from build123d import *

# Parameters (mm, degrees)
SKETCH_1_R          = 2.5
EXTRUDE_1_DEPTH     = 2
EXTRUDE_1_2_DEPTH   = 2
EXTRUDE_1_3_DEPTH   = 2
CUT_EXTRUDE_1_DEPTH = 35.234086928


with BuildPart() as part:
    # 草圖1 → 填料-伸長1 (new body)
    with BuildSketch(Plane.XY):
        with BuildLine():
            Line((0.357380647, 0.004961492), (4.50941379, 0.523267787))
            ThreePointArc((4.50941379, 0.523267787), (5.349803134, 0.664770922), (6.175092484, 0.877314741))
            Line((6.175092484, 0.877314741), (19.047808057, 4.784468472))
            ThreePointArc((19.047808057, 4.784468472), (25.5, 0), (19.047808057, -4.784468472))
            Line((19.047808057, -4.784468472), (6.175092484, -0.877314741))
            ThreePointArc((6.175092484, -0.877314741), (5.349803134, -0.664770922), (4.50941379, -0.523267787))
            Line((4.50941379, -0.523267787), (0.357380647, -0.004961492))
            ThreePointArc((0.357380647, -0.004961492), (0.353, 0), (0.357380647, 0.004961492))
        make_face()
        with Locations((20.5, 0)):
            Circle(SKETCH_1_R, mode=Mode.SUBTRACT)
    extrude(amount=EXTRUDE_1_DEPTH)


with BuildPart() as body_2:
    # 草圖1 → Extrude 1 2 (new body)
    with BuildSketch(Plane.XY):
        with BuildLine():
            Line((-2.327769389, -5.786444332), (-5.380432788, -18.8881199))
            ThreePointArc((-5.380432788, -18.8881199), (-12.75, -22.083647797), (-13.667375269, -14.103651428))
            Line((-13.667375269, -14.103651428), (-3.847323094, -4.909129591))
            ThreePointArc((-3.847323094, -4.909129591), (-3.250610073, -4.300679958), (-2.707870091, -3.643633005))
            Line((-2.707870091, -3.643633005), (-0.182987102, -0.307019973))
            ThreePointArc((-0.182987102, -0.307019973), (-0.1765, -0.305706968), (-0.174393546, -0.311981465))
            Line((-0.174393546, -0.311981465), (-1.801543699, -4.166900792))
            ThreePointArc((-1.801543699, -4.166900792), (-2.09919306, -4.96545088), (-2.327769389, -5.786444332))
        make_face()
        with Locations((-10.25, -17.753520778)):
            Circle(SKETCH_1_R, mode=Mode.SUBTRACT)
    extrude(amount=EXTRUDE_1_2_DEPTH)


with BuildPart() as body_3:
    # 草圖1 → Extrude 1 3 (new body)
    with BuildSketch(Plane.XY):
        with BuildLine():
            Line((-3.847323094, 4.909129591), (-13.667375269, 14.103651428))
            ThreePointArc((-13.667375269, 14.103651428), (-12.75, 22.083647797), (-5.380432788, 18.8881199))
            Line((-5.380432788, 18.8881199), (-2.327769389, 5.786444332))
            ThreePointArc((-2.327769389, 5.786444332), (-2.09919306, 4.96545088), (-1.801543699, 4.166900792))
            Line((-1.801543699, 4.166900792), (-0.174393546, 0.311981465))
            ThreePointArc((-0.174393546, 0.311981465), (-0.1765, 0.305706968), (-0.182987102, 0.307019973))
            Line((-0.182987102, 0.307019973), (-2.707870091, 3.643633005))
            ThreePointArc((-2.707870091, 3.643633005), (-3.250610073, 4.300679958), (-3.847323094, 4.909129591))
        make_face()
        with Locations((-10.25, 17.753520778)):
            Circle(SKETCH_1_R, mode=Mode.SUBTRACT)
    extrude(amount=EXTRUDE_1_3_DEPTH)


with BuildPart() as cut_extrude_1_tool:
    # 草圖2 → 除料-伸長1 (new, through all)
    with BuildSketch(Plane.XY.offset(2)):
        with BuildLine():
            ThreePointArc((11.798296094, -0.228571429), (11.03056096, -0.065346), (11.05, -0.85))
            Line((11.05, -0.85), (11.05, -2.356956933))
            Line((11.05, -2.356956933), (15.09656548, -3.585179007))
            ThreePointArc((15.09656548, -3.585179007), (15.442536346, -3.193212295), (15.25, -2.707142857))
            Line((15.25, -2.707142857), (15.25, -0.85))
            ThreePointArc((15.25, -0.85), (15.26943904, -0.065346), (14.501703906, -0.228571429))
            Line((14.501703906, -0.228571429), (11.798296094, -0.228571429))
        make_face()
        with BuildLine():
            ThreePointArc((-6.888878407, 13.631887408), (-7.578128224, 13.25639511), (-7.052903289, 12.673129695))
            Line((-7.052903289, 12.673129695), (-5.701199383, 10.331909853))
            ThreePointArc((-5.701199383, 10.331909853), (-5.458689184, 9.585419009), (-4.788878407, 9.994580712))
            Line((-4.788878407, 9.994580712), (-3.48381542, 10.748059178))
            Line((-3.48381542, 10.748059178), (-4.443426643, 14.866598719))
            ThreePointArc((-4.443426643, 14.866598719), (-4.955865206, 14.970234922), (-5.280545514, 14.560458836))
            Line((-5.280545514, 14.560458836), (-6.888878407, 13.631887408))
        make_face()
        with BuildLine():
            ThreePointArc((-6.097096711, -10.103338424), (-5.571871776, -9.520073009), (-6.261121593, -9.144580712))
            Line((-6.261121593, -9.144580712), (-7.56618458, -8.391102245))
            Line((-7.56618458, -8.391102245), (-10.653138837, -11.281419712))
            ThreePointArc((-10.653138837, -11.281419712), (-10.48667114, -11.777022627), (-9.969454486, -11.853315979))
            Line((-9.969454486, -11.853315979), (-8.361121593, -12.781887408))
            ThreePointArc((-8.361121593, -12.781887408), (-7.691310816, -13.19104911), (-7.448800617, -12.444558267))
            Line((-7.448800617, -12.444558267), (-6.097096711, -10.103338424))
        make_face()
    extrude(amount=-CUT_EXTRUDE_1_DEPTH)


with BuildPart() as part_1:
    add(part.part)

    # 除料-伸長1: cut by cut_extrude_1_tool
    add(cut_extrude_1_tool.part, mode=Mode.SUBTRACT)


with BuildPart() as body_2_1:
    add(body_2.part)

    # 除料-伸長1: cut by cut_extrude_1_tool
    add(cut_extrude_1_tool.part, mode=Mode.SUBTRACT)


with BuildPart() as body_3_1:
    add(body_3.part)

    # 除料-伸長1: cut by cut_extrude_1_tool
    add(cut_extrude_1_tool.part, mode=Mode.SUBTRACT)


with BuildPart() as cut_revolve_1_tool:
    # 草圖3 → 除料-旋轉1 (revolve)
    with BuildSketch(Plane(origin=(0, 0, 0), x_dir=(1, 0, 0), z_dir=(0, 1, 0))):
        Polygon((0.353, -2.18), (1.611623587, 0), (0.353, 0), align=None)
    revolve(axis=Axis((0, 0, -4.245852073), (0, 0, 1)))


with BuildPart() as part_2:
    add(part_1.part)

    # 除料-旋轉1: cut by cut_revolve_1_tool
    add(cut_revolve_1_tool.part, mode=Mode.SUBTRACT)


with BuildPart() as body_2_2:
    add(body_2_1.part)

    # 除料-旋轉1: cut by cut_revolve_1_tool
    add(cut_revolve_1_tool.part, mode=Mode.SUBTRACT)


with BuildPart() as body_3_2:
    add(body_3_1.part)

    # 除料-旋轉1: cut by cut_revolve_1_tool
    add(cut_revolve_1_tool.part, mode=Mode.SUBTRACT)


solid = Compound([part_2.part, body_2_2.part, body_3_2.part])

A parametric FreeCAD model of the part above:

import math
import FreeCAD as App
import Part
import Sketcher
Q = App.Units.Quantity

doc = App.newDocument("Part")
params = doc.addObject("Spreadsheet::Sheet", "Params")
for row, (alias, value) in enumerate([
    ("sketch1_diameter", "5 mm"),
    ("sketch1_radius", "10 mm"),
    ("sketch1_radius2", "5 mm"),
    ("pad1_length", "2 mm"),
    ("sketch2_diameter", "5 mm"),
    ("sketch2_radius", "10 mm"),
    ("sketch2_radius2", "5 mm"),
    ("pad2_length", "2 mm"),
    ("sketch3_diameter", "5 mm"),
    ("sketch3_radius", "10 mm"),
    ("sketch3_radius2", "5 mm"),
    ("pad3_length", "2 mm"),
    ("sketch4_radius", "0.5 mm"),
    ("sketch4_width", "0.3 mm"),
    ("pad4_length", "35.234087 mm"),
    ("sketch5_height", "2.18 mm"),
    ("revolution_angle", "360 deg"),
], start=1):
    params.set(f"A{row}", alias)
    params.set(f"B{row}", "=" + value)
    params.setAlias(f"B{row}", alias)

body = doc.addObject("PartDesign::Body", "Body")

# Sketch on XY plane
sketch1 = body.newObject("Sketcher::SketchObject", "Sketch")
sketch1.AttachmentSupport = (doc.getObject("XY_Plane"), [""])
sketch1.MapMode = "FlatFace"
sketch1.addGeometry([
    Part.LineSegment(App.Vector(4.509, 0.523, 0), App.Vector(0.357, 0.005, 0)),  # 0
    Part.ArcOfCircle(Part.Circle(App.Vector(0.358, 0, 0), App.Vector(0, 0, 1), 0.005), math.radians(97), math.radians(263)),  # 1
    Part.LineSegment(App.Vector(0.357, -0.005, 0), App.Vector(4.509, -0.523, 0)),  # 2
    Part.ArcOfCircle(Part.Circle(App.Vector(3.271, -10.446, 0), App.Vector(0, 0, 1), 10), math.radians(73.12), math.radians(82.88)),  # 3
    Part.LineSegment(App.Vector(6.175, -0.877, 0), App.Vector(19.048, -4.784, 0)),  # 4
    Part.ArcOfCircle(Part.Circle(App.Vector(20.5, 0, 0), App.Vector(0, 0, 1), 5), math.radians(-107), math.radians(107)),  # 5
    Part.LineSegment(App.Vector(19.048, 4.784, 0), App.Vector(6.175, 0.877, 0)),  # 6
    Part.ArcOfCircle(Part.Circle(App.Vector(3.271, 10.446, 0), App.Vector(0, 0, 1), 10), math.radians(-82.88), math.radians(-73.12)),  # 7
    Part.Circle(App.Vector(20.5, 0, 0), App.Vector(0, 0, 1), 2.5),  # 8
], False)
sketch1.addConstraint([
    Sketcher.Constraint("Tangent", 0, 2, 1, 1),
    Sketcher.Constraint("Tangent", 1, 2, 2, 1),
    Sketcher.Constraint("Tangent", 2, 2, 3, 2),
    Sketcher.Constraint("Tangent", 3, 1, 4, 1),
    Sketcher.Constraint("Tangent", 4, 2, 5, 1),
    Sketcher.Constraint("Tangent", 5, 2, 6, 1),
    Sketcher.Constraint("Tangent", 6, 2, 7, 2),
    Sketcher.Constraint("Tangent", 7, 1, 0, 1),
    Sketcher.Constraint("Coincident", 8, 3, 5, 3),
    Sketcher.Constraint("Equal", 3, 7),
    Sketcher.Constraint("Symmetric", 3, 3, 7, 3, -1),
    Sketcher.Constraint("PointOnObject", 1, 3, -1),
    Sketcher.Constraint("PointOnObject", 5, 3, -1),
    Sketcher.Constraint("Diameter", 8, Q("5 mm")),
    Sketcher.Constraint("Radius", 3, Q("10 mm")),
    Sketcher.Constraint("Radius", 5, Q("5 mm")),
    Sketcher.Constraint("Radius", 1, Q("0.005 mm")),
    Sketcher.Constraint("DistanceX", -1, 1, 5, 3, Q("20.5 mm")),
    Sketcher.Constraint("DistanceX", -1, 1, 1, 3, Q("0.358 mm")),
    Sketcher.Constraint("DistanceY", 4, 2, 2, 2, Q("4.261201 mm")),
    Sketcher.Constraint("DistanceX", 3, 3, 4, 2, Q("15.777099 mm")),
])
sketch1.setExpression("Constraints[13]", "Params.sketch1_diameter")
sketch1.setExpression("Constraints[14]", "Params.sketch1_radius")
sketch1.setExpression("Constraints[15]", "Params.sketch1_radius2")
pad1 = body.newObject("PartDesign::Pad", "Pad")
pad1.Profile = sketch1
pad1.setExpression("Length", "Params.pad1_length")
body2 = doc.addObject("PartDesign::Body", "Body001")

# Sketch on XY plane
sketch2 = body2.newObject("Sketcher::SketchObject", "Sketch001")
sketch2.AttachmentSupport = (doc.getObject("XY_Plane001"), [""])
sketch2.MapMode = "FlatFace"
sketch2.addGeometry([
    Part.LineSegment(App.Vector(-5.38, -18.888, 0), App.Vector(-2.328, -5.786, 0)),  # 0
    Part.ArcOfCircle(Part.Circle(App.Vector(7.411, -8.056, 0), App.Vector(0, 0, 1), 10), math.radians(157.12), math.radians(166.88)),  # 1
    Part.LineSegment(App.Vector(-1.802, -4.167, 0), App.Vector(-0.174, -0.312, 0)),  # 2
    Part.ArcOfCircle(Part.Circle(App.Vector(-0.179, -0.31, 0), App.Vector(0, 0, 1), 0.005), math.radians(-23), math.radians(143)),  # 3
    Part.LineSegment(App.Vector(-0.183, -0.307, 0), App.Vector(-2.708, -3.644, 0)),  # 4
    Part.ArcOfCircle(Part.Circle(App.Vector(-10.682, 2.391, 0), App.Vector(0, 0, 1), 10), math.radians(-46.88), math.radians(-37.12)),  # 5
    Part.LineSegment(App.Vector(-3.847, -4.909, 0), App.Vector(-13.667, -14.104, 0)),  # 6
    Part.ArcOfCircle(Part.Circle(App.Vector(-10.25, -17.754, 0), App.Vector(0, 0, 1), 5), math.radians(133), math.radians(347)),  # 7
    Part.Circle(App.Vector(-10.25, -17.754, 0), App.Vector(0, 0, 1), 2.5),  # 8
], False)
sketch2.addConstraint([
    Sketcher.Constraint("Tangent", 0, 2, 1, 2),
    Sketcher.Constraint("Tangent", 1, 1, 2, 1),
    Sketcher.Constraint("Tangent", 2, 2, 3, 1),
    Sketcher.Constraint("Tangent", 3, 2, 4, 1),
    Sketcher.Constraint("Tangent", 4, 2, 5, 2),
    Sketcher.Constraint("Tangent", 5, 1, 6, 1),
    Sketcher.Constraint("Tangent", 6, 2, 7, 1),
    Sketcher.Constraint("Tangent", 7, 2, 0, 1),
    Sketcher.Constraint("Coincident", 8, 3, 7, 3),
    Sketcher.Constraint("Equal", 1, 5),
    Sketcher.Constraint("Equal", 2, 4),
    Sketcher.Constraint("Equal", 0, 6),
    Sketcher.Constraint("Diameter", 8, Q("5 mm")),
    Sketcher.Constraint("Radius", 1, Q("10 mm")),
    Sketcher.Constraint("Radius", 7, Q("5 mm")),
    Sketcher.Constraint("Radius", 3, Q("0.005 mm")),
    Sketcher.Constraint("DistanceX", 7, 3, -1, 1, Q("10.25 mm")),
    Sketcher.Constraint("DistanceX", 3, 3, -1, 1, Q("0.179 mm")),
    Sketcher.Constraint("DistanceY", 1, 1, -1, 1, Q("4.166901 mm")),
    Sketcher.Constraint("DistanceY", 1, 3, 0, 2, Q("2.269198 mm")),
    Sketcher.Constraint("DistanceX", 4, 2, 0, 2, Q("0.380101 mm")),
    Sketcher.Constraint("Distance", 2, Q("4.184259 mm")),
])
sketch2.setExpression("Constraints[12]", "Params.sketch2_diameter")
sketch2.setExpression("Constraints[13]", "Params.sketch2_radius")
sketch2.setExpression("Constraints[14]", "Params.sketch2_radius2")
pad2 = body2.newObject("PartDesign::Pad", "Pad001")
pad2.Profile = sketch2
pad2.setExpression("Length", "Params.pad2_length")
body3 = doc.addObject("PartDesign::Body", "Body002")

# Sketch on XY plane
sketch3 = body3.newObject("Sketcher::SketchObject", "Sketch002")
sketch3.AttachmentSupport = (doc.getObject("XY_Plane002"), [""])
sketch3.MapMode = "FlatFace"
sketch3.addGeometry([
    Part.LineSegment(App.Vector(-13.667, 14.104, 0), App.Vector(-3.847, 4.909, 0)),  # 0
    Part.ArcOfCircle(Part.Circle(App.Vector(-10.682, -2.391, 0), App.Vector(0, 0, 1), 10), math.radians(37.12), math.radians(46.88)),  # 1
    Part.LineSegment(App.Vector(-2.708, 3.644, 0), App.Vector(-0.183, 0.307, 0)),  # 2
    Part.ArcOfCircle(Part.Circle(App.Vector(-0.179, 0.31, 0), App.Vector(0, 0, 1), 0.005), math.radians(-143), math.radians(23)),  # 3
    Part.LineSegment(App.Vector(-0.174, 0.312, 0), App.Vector(-1.802, 4.167, 0)),  # 4
    Part.ArcOfCircle(Part.Circle(App.Vector(7.411, 8.056, 0), App.Vector(0, 0, 1), 10), math.radians(-166.88), math.radians(-157.12)),  # 5
    Part.LineSegment(App.Vector(-2.328, 5.786, 0), App.Vector(-5.38, 18.888, 0)),  # 6
    Part.ArcOfCircle(Part.Circle(App.Vector(-10.25, 17.754, 0), App.Vector(0, 0, 1), 5), math.radians(13), math.radians(227)),  # 7
    Part.Circle(App.Vector(-10.25, 17.754, 0), App.Vector(0, 0, 1), 2.5),  # 8
], False)
sketch3.addConstraint([
    Sketcher.Constraint("Tangent", 0, 2, 1, 2),
    Sketcher.Constraint("Tangent", 1, 1, 2, 1),
    Sketcher.Constraint("Tangent", 2, 2, 3, 1),
    Sketcher.Constraint("Tangent", 3, 2, 4, 1),
    Sketcher.Constraint("Tangent", 4, 2, 5, 2),
    Sketcher.Constraint("Tangent", 5, 1, 6, 1),
    Sketcher.Constraint("Tangent", 6, 2, 7, 1),
    Sketcher.Constraint("Tangent", 7, 2, 0, 1),
    Sketcher.Constraint("Coincident", 8, 3, 7, 3),
    Sketcher.Constraint("Equal", 1, 5),
    Sketcher.Constraint("Equal", 2, 4),
    Sketcher.Constraint("Equal", 0, 6),
    Sketcher.Constraint("Diameter", 8, Q("5 mm")),
    Sketcher.Constraint("Radius", 1, Q("10 mm")),
    Sketcher.Constraint("Radius", 7, Q("5 mm")),
    Sketcher.Constraint("Radius", 3, Q("0.005 mm")),
    Sketcher.Constraint("DistanceX", 7, 3, -1, 1, Q("10.25 mm")),
    Sketcher.Constraint("DistanceX", 3, 3, -1, 1, Q("0.179 mm")),
    Sketcher.Constraint("DistanceY", -1, 1, 4, 2, Q("4.166901 mm")),
    Sketcher.Constraint("DistanceX", 1, 1, 5, 1, Q("0.380101 mm")),
    Sketcher.Constraint("DistanceY", 7, 3, 6, 2, Q("1.134599 mm")),
    Sketcher.Constraint("Distance", 2, Q("4.184259 mm")),
])
sketch3.setExpression("Constraints[12]", "Params.sketch3_diameter")
sketch3.setExpression("Constraints[13]", "Params.sketch3_radius")
sketch3.setExpression("Constraints[14]", "Params.sketch3_radius2")
pad3 = body3.newObject("PartDesign::Pad", "Pad002")
pad3.Profile = sketch3
pad3.setExpression("Length", "Params.pad3_length")
body4 = doc.addObject("PartDesign::Body", "Body003")
body4.AllowCompound = True

# Sketch on XY plane
sketch4 = body4.newObject("Sketcher::SketchObject", "Sketch003")
sketch4.AttachmentSupport = (doc.getObject("XY_Plane003"), [""])
sketch4.MapMode = "FlatFace"
sketch4.AttachmentOffset = App.Placement(App.Vector(0, 0, 2), App.Rotation())
sketch4.addGeometry([
    Part.ArcOfCircle(Part.Circle(App.Vector(11.3, -0.5, 0), App.Vector(0, 0, 1), 0.5), math.radians(26), math.radians(233)),  # 0
    Part.LineSegment(App.Vector(11.1, -0.8, 0), App.Vector(11.1, -2.4, 0)),  # 1
    Part.LineSegment(App.Vector(11.1, -2.4, 0), App.Vector(15.1, -3.6, 0)),  # 2
    Part.ArcOfCircle(Part.Circle(App.Vector(14.9, -3.1, 0), App.Vector(0, 0, 1), 0.5), math.radians(-73), math.radians(53)),  # 3
    Part.LineSegment(App.Vector(15.2, -2.7, 0), App.Vector(15.2, -0.8, 0)),  # 4
    Part.ArcOfCircle(Part.Circle(App.Vector(14.9, -0.5, 0), App.Vector(0, 0, 1), 0.5), math.radians(-53), math.radians(154)),  # 5
    Part.LineSegment(App.Vector(14.5, -0.2, 0), App.Vector(11.8, -0.2, 0)),  # 6
    Part.ArcOfCircle(Part.Circle(App.Vector(-7.1, 13.2, 0), App.Vector(0, 0, 1), 0.5), math.radians(67), math.radians(274)),  # 7
    Part.LineSegment(App.Vector(-7.1, 12.7, 0), App.Vector(-5.7, 10.3, 0)),  # 8
    Part.ArcOfCircle(Part.Circle(App.Vector(-5.3, 10.1, 0), App.Vector(0, 0, 1), 0.5), math.radians(146), math.radians(353)),  # 9
    Part.LineSegment(App.Vector(-4.8, 10, 0), App.Vector(-3.5, 10.7, 0)),  # 10
    Part.LineSegment(App.Vector(-3.5, 10.7, 0), App.Vector(-4.4, 14.9, 0)),  # 11
    Part.ArcOfCircle(Part.Circle(App.Vector(-4.8, 14.5, 0), App.Vector(0, 0, 1), 0.5), math.radians(47), math.radians(173)),  # 12
    Part.LineSegment(App.Vector(-5.3, 14.6, 0), App.Vector(-6.9, 13.6, 0)),  # 13
    Part.ArcOfCircle(Part.Circle(App.Vector(-6.1, -9.6, 0), App.Vector(0, 0, 1), 0.5), math.radians(-94), math.radians(113)),  # 14
    Part.LineSegment(App.Vector(-6.3, -9.1, 0), App.Vector(-7.6, -8.4, 0)),  # 15
    Part.LineSegment(App.Vector(-7.6, -8.4, 0), App.Vector(-10.7, -11.3, 0)),  # 16
    Part.ArcOfCircle(Part.Circle(App.Vector(-10.2, -11.4, 0), App.Vector(0, 0, 1), 0.5), math.radians(167), math.radians(293)),  # 17
    Part.LineSegment(App.Vector(-10, -11.9, 0), App.Vector(-8.4, -12.8, 0)),  # 18
    Part.ArcOfCircle(Part.Circle(App.Vector(-7.9, -12.7, 0), App.Vector(0, 0, 1), 0.5), math.radians(-173), math.radians(34)),  # 19
    Part.LineSegment(App.Vector(-7.4, -12.4, 0), App.Vector(-6.1, -10.1, 0)),  # 20
], False)
sketch4.addConstraint([
    Sketcher.Constraint("Coincident", 0, 2, 1, 1),
    Sketcher.Constraint("Coincident", 1, 2, 2, 1),
    Sketcher.Constraint("Coincident", 2, 2, 3, 1),
    Sketcher.Constraint("Coincident", 3, 2, 4, 1),
    Sketcher.Constraint("Coincident", 4, 2, 5, 1),
    Sketcher.Constraint("Coincident", 5, 2, 6, 1),
    Sketcher.Constraint("Coincident", 6, 2, 0, 1),
    Sketcher.Constraint("Coincident", 7, 2, 8, 1),
    Sketcher.Constraint("Coincident", 8, 2, 9, 1),
    Sketcher.Constraint("Coincident", 9, 2, 10, 1),
    Sketcher.Constraint("Coincident", 10, 2, 11, 1),
    Sketcher.Constraint("Coincident", 11, 2, 12, 1),
    Sketcher.Constraint("Coincident", 12, 2, 13, 1),
    Sketcher.Constraint("Coincident", 13, 2, 7, 1),
    Sketcher.Constraint("Coincident", 14, 2, 15, 1),
    Sketcher.Constraint("Coincident", 15, 2, 16, 1),
    Sketcher.Constraint("Coincident", 16, 2, 17, 1),
    Sketcher.Constraint("Coincident", 17, 2, 18, 1),
    Sketcher.Constraint("Coincident", 18, 2, 19, 1),
    Sketcher.Constraint("Coincident", 19, 2, 20, 1),
    Sketcher.Constraint("Coincident", 20, 2, 14, 1),
    Sketcher.Constraint("Vertical", 1),
    Sketcher.Constraint("Vertical", 4),
    Sketcher.Constraint("Horizontal", 6),
    Sketcher.Constraint("Equal", 0, 3),
    Sketcher.Constraint("Equal", 3, 5),
    Sketcher.Constraint("Equal", 5, 7),
    Sketcher.Constraint("Equal", 7, 9),
    Sketcher.Constraint("Equal", 9, 12),
    Sketcher.Constraint("Equal", 12, 14),
    Sketcher.Constraint("Equal", 14, 17),
    Sketcher.Constraint("Equal", 17, 19),
    Sketcher.Constraint("Perpendicular", 8, 10),
    Sketcher.Constraint("Parallel", 10, 13),
    Sketcher.Constraint("Parallel", 15, 18),
    Sketcher.Constraint("Perpendicular", 18, 20),
    Sketcher.Constraint("Horizontal", 0, 3, 5, 3),
    Sketcher.Constraint("Horizontal", 0, 2, 4, 2),
    Sketcher.Constraint("Vertical", 3, 3, 5, 3),
    Sketcher.Constraint("Equal", 2, 11),
    Sketcher.Constraint("Equal", 10, 15),
    Sketcher.Constraint("Equal", 11, 16),
    Sketcher.Constraint("Equal", 13, 18),
    Sketcher.Constraint("Equal", 8, 20),
    Sketcher.Constraint("Radius", 0, Q("0.5 mm")),
    Sketcher.Constraint("Angle", 8, Q("-60 deg")),
    Sketcher.Constraint("Angle", 15, Q("150 deg")),
    Sketcher.Constraint("DistanceX", 0, 3, 3, 3, Q("3.6 mm")),
    Sketcher.Constraint("DistanceX", 7, 3, 9, 3, Q("1.8 mm")),
    Sketcher.Constraint("DistanceX", 19, 3, 14, 3, Q("1.8 mm")),
    Sketcher.Constraint("DistanceX", 0, 2, 0, 3, Q("0.3 mm")),
    Sketcher.Constraint("DistanceX", -1, 1, 0, 3, Q("11.35 mm")),
    Sketcher.Constraint("DistanceY", 0, 3, -1, 1, Q("0.45 mm")),
    Sketcher.Constraint("DistanceX", 8, 2, -1, 1, Q("5.701199 mm")),
    Sketcher.Constraint("DistanceY", -1, 1, 11, 2, Q("14.866599 mm")),
    Sketcher.Constraint("DistanceX", 19, 2, -1, 1, Q("7.448801 mm")),
    Sketcher.Constraint("DistanceY", 14, 3, 8, 2, Q("19.936298 mm")),
    Sketcher.Constraint("DistanceY", 9, 2, 7, 3, Q("3.177499 mm")),
    Sketcher.Constraint("DistanceY", 10, 2, 12, 2, Q("3.8124 mm")),
    Sketcher.Constraint("DistanceY", 19, 3, 14, 2, Q("3.577499 mm")),
    Sketcher.Constraint("DistanceY", 18, 2, 14, 3, Q("3.177499 mm")),
    Sketcher.Constraint("DistanceX", 6, 2, 6, 1, Q("2.703408 mm")),
    Sketcher.Constraint("DistanceY", 1, 2, 1, 1, Q("1.506957 mm")),
    Sketcher.Constraint("DistanceY", 4, 1, 4, 2, Q("1.857143 mm")),
    Sketcher.Constraint("DistanceX", 7, 3, -1, 1, Q("7.085289 mm")),
    Sketcher.Constraint("DistanceY", -1, 1, 7, 3, Q("13.17208 mm")),
    Sketcher.Constraint("DistanceY", -1, 1, 9, 3, Q("10.054388 mm")),
    Sketcher.Constraint("DistanceY", -1, 1, 12, 3, Q("14.500651 mm")),
    Sketcher.Constraint("DistanceX", 14, 3, -1, 1, Q("6.064711 mm")),
    Sketcher.Constraint("DistanceY", 17, 3, -1, 1, Q("11.393508 mm")),
    Sketcher.Constraint("DistanceY", 2, 2, -1, 1, Q("3.585179 mm")),
    Sketcher.Constraint("DistanceY", -1, 1, 10, 2, Q("10.748059 mm")),
])
sketch4.setExpression("Constraints[44]", "Params.sketch4_radius")
sketch4.setExpression("Constraints[50]", "Params.sketch4_width")
pad4 = body4.newObject("PartDesign::Pad", "Pad003")
pad4.Profile = sketch4
pad4.setExpression("Length", "Params.pad4_length")
pad4.Reversed = True
doc.recompute()

body5 = doc.addObject("PartDesign::Body", "Body004")
body5.BaseFeature = body4
boolean = body.newObject("PartDesign::Boolean", "Boolean")
boolean.Type = "Cut"
boolean.addObjects([body5])
doc.recompute()

body6 = doc.addObject("PartDesign::Body", "Body005")
body6.BaseFeature = body4
boolean2 = body2.newObject("PartDesign::Boolean", "Boolean001")
boolean2.Type = "Cut"
boolean2.addObjects([body6])
doc.recompute()

boolean3 = body3.newObject("PartDesign::Boolean", "Boolean002")
boolean3.Type = "Cut"
boolean3.addObjects([body4])
body7 = doc.addObject("PartDesign::Body", "Body006")

# Sketch on XZ plane
sketch5 = body7.newObject("Sketcher::SketchObject", "Sketch004")
sketch5.AttachmentSupport = (doc.getObject("XZ_Plane006"), [""])
sketch5.MapMode = "FlatFace"
sketch5.addGeometry([
    Part.LineSegment(App.Vector(0.4, 2.2, 0), App.Vector(1.6, 0, 0)),
    Part.LineSegment(App.Vector(1.6, 0, 0), App.Vector(0.4, 0, 0)),
    Part.LineSegment(App.Vector(0.4, 0, 0), App.Vector(0.4, 2.2, 0)),
], False)
sketch5.addConstraint([
    Sketcher.Constraint("Coincident", 0, 2, 1, 1),
    Sketcher.Constraint("Coincident", 1, 2, 2, 1),
    Sketcher.Constraint("Coincident", 2, 2, 0, 1),
    Sketcher.Constraint("Horizontal", 1),
    Sketcher.Constraint("Vertical", 2),
    Sketcher.Constraint("PointOnObject", 0, 2, -1),
    Sketcher.Constraint("Angle", 0, Q("-60 deg")),
    Sketcher.Constraint("DistanceY", 2, 1, 2, 2, Q("2.18 mm")),
    Sketcher.Constraint("DistanceX", -1, 1, 1, 2, Q("0.353 mm")),
])
sketch5.setExpression("Constraints[7]", "Params.sketch5_height")
revolution = body7.newObject("PartDesign::Revolution", "Revolution")
revolution.Profile = sketch5
revolution.ReferenceAxis = (sketch5, ["V_Axis"])
revolution.setExpression("Angle", "Params.revolution_angle")
doc.recompute()

body8 = doc.addObject("PartDesign::Body", "Body007")
body8.BaseFeature = body7
boolean4 = body.newObject("PartDesign::Boolean", "Boolean003")
boolean4.Type = "Cut"
boolean4.addObjects([body8])
doc.recompute()

body9 = doc.addObject("PartDesign::Body", "Body008")
body9.BaseFeature = body7
boolean5 = body2.newObject("PartDesign::Boolean", "Boolean004")
boolean5.Type = "Cut"
boolean5.addObjects([body9])
doc.recompute()

boolean6 = body3.newObject("PartDesign::Boolean", "Boolean005")
boolean6.Type = "Cut"
boolean6.addObjects([body7])

doc.recompute()
